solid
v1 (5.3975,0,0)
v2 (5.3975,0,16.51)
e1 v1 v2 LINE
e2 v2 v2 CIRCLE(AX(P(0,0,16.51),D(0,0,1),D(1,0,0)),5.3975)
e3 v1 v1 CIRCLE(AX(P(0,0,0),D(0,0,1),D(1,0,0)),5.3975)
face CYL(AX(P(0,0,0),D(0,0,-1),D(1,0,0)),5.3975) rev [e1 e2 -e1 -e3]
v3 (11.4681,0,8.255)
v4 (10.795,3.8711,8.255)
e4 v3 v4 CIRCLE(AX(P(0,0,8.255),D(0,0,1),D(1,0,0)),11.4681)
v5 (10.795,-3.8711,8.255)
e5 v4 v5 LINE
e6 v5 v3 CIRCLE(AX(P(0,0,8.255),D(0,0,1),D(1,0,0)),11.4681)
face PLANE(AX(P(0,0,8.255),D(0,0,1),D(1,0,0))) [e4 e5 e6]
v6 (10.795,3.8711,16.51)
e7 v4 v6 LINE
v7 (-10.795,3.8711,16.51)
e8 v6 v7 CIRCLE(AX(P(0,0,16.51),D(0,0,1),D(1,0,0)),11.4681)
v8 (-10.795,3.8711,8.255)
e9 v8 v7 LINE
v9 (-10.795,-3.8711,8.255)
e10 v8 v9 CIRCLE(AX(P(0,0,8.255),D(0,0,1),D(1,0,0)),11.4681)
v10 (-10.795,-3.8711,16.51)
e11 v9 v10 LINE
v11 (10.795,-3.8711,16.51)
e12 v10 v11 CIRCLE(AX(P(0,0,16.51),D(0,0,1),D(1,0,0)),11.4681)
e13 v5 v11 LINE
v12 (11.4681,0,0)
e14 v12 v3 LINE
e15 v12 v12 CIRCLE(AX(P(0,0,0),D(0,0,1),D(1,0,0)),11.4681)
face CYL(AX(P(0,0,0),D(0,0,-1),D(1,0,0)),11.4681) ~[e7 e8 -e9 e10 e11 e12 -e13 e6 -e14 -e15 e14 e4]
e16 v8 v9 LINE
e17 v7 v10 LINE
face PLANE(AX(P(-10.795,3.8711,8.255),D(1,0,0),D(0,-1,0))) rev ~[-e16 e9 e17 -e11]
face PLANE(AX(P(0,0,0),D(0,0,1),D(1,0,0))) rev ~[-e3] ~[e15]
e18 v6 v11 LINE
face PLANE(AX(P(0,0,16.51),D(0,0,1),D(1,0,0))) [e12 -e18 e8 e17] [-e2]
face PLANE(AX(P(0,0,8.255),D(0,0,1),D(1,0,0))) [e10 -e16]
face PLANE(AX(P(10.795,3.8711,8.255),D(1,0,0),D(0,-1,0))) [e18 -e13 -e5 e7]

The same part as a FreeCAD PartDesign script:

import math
import FreeCAD as App
import Part
import Sketcher
from FreeCAD import Vector
Q = App.Units.Quantity

doc = App.newDocument("Part")
params = doc.addObject("Spreadsheet::Sheet", "Params")
for row, (alias, value) in enumerate([
    ("sketch1_diameter", "0.903 in"),
    ("sketch1_diameter2", "0.425 in"),
    ("pad1_length", "0.325 in"),
    ("sketch2_diameter", "0.425 in"),
    ("pad2_length", "0.325 in"),
], start=1):
    params.set(f"A{row}", alias)
    params.set(f"B{row}", "=" + value)
    params.setAlias(f"B{row}", alias)

body = doc.addObject("PartDesign::Body", "Body")

# Sketch on XY plane
sketch1 = doc.addObject("Sketcher::SketchObject", "Sketch")
body.addObject(sketch1)
sketch1.AttachmentSupport = (doc.XY_Plane, [""])
sketch1.MapMode = "FlatFace"
sketch1.addGeometry(Part.Circle(Vector(0, 0, 0), Vector(0, 0, 1), 11), False)
sketch1.addGeometry(Part.Circle(Vector(0, 0, 0), Vector(0, 0, 1), 5), False)
sketch1.addConstraint(Sketcher.Constraint("Coincident", 0, 3, -1, 1))
sketch1.addConstraint(Sketcher.Constraint("Coincident", 1, 3, -1, 1))
sketch1.addConstraint(Sketcher.Constraint("Diameter", 0, Q("0.903 in")))
sketch1.addConstraint(Sketcher.Constraint("Diameter", 1, Q("0.425 in")))
sketch1.setExpression("Constraints[2]", "Params.sketch1_diameter")
sketch1.setExpression("Constraints[3]", "Params.sketch1_diameter2")
pad1 = doc.addObject("PartDesign::Pad", "Pad")
body.addObject(pad1)
pad1.Profile = sketch1
pad1.setExpression("Length", "Params.pad1_length")

# Sketch on XY plane
sketch2 = doc.addObject("Sketcher::SketchObject", "Sketch001")
body.addObject(sketch2)
sketch2.AttachmentSupport = (doc.XY_Plane, [""])
sketch2.MapMode = "FlatFace"
sketch2.AttachmentOffset = App.Placement(Vector(0, 0, 0.325 * 25.4), App.Rotation())
sketch2.addGeometry(Part.LineSegment(Vector(11, -4, 0), Vector(11, 4, 0)), False)
sketch2.addGeometry(Part.ArcOfCircle(Part.Circle(Vector(0, 0, 0), Vector(0, 0, 1), 11), math.radians(20), math.radians(160)), False)
sketch2.addGeometry(Part.LineSegment(Vector(-11, 4, 0), Vector(-11, -4, 0)), False)
sketch2.addGeometry(Part.ArcOfCircle(Part.Circle(Vector(0, 0, 0), Vector(0, 0, 1), 11), math.radians(-160), math.radians(-20)), False)
sketch2.addGeometry(Part.Circle(Vector(0, 0, 0), Vector(0, 0, 1), 5), False)
sketch2.addConstraint(Sketcher.Constraint("Coincident", 0, 2, 1, 1))
sketch2.addConstraint(Sketcher.Constraint("Coincident", 1, 2, 2, 1))
sketch2.addConstraint(Sketcher.Constraint("Coincident", 2, 2, 3, 1))
sketch2.addConstraint(Sketcher.Constraint("Coincident", 3, 2, 0, 1))
sketch2.addConstraint(Sketcher.Constraint("Vertical", 0))
sketch2.addConstraint(Sketcher.Constraint("Vertical", 2))
sketch2.addConstraint(Sketcher.Constraint("Coincident", 1, 3, -1, 1))
sketch2.addConstraint(Sketcher.Constraint("Coincident", 3, 3, -1, 1))
sketch2.addConstraint(Sketcher.Constraint("Coincident", 4, 3, -1, 1))
sketch2.addConstraint(Sketcher.Constraint("Equal", 1, 3))
sketch2.addConstraint(Sketcher.Constraint("Horizontal", 0, 2, 1, 2))
sketch2.addConstraint(Sketcher.Constraint("DistanceX", 1, 2, 0, 2, Q("0.85 in")))
sketch2.addConstraint(Sketcher.Constraint("Diameter", 4, Q("0.425 in")))
sketch2.addConstraint(Sketcher.Constraint("Radius", 1, Q("0.4515 in")))
sketch2.setExpression("Constraints[12]", "Params.sketch2_diameter")
pad2 = doc.addObject("PartDesign::Pad", "Pad001")
body.addObject(pad2)
pad2.Profile = sketch2
pad2.setExpression("Length", "Params.pad2_length")

doc.recompute()
